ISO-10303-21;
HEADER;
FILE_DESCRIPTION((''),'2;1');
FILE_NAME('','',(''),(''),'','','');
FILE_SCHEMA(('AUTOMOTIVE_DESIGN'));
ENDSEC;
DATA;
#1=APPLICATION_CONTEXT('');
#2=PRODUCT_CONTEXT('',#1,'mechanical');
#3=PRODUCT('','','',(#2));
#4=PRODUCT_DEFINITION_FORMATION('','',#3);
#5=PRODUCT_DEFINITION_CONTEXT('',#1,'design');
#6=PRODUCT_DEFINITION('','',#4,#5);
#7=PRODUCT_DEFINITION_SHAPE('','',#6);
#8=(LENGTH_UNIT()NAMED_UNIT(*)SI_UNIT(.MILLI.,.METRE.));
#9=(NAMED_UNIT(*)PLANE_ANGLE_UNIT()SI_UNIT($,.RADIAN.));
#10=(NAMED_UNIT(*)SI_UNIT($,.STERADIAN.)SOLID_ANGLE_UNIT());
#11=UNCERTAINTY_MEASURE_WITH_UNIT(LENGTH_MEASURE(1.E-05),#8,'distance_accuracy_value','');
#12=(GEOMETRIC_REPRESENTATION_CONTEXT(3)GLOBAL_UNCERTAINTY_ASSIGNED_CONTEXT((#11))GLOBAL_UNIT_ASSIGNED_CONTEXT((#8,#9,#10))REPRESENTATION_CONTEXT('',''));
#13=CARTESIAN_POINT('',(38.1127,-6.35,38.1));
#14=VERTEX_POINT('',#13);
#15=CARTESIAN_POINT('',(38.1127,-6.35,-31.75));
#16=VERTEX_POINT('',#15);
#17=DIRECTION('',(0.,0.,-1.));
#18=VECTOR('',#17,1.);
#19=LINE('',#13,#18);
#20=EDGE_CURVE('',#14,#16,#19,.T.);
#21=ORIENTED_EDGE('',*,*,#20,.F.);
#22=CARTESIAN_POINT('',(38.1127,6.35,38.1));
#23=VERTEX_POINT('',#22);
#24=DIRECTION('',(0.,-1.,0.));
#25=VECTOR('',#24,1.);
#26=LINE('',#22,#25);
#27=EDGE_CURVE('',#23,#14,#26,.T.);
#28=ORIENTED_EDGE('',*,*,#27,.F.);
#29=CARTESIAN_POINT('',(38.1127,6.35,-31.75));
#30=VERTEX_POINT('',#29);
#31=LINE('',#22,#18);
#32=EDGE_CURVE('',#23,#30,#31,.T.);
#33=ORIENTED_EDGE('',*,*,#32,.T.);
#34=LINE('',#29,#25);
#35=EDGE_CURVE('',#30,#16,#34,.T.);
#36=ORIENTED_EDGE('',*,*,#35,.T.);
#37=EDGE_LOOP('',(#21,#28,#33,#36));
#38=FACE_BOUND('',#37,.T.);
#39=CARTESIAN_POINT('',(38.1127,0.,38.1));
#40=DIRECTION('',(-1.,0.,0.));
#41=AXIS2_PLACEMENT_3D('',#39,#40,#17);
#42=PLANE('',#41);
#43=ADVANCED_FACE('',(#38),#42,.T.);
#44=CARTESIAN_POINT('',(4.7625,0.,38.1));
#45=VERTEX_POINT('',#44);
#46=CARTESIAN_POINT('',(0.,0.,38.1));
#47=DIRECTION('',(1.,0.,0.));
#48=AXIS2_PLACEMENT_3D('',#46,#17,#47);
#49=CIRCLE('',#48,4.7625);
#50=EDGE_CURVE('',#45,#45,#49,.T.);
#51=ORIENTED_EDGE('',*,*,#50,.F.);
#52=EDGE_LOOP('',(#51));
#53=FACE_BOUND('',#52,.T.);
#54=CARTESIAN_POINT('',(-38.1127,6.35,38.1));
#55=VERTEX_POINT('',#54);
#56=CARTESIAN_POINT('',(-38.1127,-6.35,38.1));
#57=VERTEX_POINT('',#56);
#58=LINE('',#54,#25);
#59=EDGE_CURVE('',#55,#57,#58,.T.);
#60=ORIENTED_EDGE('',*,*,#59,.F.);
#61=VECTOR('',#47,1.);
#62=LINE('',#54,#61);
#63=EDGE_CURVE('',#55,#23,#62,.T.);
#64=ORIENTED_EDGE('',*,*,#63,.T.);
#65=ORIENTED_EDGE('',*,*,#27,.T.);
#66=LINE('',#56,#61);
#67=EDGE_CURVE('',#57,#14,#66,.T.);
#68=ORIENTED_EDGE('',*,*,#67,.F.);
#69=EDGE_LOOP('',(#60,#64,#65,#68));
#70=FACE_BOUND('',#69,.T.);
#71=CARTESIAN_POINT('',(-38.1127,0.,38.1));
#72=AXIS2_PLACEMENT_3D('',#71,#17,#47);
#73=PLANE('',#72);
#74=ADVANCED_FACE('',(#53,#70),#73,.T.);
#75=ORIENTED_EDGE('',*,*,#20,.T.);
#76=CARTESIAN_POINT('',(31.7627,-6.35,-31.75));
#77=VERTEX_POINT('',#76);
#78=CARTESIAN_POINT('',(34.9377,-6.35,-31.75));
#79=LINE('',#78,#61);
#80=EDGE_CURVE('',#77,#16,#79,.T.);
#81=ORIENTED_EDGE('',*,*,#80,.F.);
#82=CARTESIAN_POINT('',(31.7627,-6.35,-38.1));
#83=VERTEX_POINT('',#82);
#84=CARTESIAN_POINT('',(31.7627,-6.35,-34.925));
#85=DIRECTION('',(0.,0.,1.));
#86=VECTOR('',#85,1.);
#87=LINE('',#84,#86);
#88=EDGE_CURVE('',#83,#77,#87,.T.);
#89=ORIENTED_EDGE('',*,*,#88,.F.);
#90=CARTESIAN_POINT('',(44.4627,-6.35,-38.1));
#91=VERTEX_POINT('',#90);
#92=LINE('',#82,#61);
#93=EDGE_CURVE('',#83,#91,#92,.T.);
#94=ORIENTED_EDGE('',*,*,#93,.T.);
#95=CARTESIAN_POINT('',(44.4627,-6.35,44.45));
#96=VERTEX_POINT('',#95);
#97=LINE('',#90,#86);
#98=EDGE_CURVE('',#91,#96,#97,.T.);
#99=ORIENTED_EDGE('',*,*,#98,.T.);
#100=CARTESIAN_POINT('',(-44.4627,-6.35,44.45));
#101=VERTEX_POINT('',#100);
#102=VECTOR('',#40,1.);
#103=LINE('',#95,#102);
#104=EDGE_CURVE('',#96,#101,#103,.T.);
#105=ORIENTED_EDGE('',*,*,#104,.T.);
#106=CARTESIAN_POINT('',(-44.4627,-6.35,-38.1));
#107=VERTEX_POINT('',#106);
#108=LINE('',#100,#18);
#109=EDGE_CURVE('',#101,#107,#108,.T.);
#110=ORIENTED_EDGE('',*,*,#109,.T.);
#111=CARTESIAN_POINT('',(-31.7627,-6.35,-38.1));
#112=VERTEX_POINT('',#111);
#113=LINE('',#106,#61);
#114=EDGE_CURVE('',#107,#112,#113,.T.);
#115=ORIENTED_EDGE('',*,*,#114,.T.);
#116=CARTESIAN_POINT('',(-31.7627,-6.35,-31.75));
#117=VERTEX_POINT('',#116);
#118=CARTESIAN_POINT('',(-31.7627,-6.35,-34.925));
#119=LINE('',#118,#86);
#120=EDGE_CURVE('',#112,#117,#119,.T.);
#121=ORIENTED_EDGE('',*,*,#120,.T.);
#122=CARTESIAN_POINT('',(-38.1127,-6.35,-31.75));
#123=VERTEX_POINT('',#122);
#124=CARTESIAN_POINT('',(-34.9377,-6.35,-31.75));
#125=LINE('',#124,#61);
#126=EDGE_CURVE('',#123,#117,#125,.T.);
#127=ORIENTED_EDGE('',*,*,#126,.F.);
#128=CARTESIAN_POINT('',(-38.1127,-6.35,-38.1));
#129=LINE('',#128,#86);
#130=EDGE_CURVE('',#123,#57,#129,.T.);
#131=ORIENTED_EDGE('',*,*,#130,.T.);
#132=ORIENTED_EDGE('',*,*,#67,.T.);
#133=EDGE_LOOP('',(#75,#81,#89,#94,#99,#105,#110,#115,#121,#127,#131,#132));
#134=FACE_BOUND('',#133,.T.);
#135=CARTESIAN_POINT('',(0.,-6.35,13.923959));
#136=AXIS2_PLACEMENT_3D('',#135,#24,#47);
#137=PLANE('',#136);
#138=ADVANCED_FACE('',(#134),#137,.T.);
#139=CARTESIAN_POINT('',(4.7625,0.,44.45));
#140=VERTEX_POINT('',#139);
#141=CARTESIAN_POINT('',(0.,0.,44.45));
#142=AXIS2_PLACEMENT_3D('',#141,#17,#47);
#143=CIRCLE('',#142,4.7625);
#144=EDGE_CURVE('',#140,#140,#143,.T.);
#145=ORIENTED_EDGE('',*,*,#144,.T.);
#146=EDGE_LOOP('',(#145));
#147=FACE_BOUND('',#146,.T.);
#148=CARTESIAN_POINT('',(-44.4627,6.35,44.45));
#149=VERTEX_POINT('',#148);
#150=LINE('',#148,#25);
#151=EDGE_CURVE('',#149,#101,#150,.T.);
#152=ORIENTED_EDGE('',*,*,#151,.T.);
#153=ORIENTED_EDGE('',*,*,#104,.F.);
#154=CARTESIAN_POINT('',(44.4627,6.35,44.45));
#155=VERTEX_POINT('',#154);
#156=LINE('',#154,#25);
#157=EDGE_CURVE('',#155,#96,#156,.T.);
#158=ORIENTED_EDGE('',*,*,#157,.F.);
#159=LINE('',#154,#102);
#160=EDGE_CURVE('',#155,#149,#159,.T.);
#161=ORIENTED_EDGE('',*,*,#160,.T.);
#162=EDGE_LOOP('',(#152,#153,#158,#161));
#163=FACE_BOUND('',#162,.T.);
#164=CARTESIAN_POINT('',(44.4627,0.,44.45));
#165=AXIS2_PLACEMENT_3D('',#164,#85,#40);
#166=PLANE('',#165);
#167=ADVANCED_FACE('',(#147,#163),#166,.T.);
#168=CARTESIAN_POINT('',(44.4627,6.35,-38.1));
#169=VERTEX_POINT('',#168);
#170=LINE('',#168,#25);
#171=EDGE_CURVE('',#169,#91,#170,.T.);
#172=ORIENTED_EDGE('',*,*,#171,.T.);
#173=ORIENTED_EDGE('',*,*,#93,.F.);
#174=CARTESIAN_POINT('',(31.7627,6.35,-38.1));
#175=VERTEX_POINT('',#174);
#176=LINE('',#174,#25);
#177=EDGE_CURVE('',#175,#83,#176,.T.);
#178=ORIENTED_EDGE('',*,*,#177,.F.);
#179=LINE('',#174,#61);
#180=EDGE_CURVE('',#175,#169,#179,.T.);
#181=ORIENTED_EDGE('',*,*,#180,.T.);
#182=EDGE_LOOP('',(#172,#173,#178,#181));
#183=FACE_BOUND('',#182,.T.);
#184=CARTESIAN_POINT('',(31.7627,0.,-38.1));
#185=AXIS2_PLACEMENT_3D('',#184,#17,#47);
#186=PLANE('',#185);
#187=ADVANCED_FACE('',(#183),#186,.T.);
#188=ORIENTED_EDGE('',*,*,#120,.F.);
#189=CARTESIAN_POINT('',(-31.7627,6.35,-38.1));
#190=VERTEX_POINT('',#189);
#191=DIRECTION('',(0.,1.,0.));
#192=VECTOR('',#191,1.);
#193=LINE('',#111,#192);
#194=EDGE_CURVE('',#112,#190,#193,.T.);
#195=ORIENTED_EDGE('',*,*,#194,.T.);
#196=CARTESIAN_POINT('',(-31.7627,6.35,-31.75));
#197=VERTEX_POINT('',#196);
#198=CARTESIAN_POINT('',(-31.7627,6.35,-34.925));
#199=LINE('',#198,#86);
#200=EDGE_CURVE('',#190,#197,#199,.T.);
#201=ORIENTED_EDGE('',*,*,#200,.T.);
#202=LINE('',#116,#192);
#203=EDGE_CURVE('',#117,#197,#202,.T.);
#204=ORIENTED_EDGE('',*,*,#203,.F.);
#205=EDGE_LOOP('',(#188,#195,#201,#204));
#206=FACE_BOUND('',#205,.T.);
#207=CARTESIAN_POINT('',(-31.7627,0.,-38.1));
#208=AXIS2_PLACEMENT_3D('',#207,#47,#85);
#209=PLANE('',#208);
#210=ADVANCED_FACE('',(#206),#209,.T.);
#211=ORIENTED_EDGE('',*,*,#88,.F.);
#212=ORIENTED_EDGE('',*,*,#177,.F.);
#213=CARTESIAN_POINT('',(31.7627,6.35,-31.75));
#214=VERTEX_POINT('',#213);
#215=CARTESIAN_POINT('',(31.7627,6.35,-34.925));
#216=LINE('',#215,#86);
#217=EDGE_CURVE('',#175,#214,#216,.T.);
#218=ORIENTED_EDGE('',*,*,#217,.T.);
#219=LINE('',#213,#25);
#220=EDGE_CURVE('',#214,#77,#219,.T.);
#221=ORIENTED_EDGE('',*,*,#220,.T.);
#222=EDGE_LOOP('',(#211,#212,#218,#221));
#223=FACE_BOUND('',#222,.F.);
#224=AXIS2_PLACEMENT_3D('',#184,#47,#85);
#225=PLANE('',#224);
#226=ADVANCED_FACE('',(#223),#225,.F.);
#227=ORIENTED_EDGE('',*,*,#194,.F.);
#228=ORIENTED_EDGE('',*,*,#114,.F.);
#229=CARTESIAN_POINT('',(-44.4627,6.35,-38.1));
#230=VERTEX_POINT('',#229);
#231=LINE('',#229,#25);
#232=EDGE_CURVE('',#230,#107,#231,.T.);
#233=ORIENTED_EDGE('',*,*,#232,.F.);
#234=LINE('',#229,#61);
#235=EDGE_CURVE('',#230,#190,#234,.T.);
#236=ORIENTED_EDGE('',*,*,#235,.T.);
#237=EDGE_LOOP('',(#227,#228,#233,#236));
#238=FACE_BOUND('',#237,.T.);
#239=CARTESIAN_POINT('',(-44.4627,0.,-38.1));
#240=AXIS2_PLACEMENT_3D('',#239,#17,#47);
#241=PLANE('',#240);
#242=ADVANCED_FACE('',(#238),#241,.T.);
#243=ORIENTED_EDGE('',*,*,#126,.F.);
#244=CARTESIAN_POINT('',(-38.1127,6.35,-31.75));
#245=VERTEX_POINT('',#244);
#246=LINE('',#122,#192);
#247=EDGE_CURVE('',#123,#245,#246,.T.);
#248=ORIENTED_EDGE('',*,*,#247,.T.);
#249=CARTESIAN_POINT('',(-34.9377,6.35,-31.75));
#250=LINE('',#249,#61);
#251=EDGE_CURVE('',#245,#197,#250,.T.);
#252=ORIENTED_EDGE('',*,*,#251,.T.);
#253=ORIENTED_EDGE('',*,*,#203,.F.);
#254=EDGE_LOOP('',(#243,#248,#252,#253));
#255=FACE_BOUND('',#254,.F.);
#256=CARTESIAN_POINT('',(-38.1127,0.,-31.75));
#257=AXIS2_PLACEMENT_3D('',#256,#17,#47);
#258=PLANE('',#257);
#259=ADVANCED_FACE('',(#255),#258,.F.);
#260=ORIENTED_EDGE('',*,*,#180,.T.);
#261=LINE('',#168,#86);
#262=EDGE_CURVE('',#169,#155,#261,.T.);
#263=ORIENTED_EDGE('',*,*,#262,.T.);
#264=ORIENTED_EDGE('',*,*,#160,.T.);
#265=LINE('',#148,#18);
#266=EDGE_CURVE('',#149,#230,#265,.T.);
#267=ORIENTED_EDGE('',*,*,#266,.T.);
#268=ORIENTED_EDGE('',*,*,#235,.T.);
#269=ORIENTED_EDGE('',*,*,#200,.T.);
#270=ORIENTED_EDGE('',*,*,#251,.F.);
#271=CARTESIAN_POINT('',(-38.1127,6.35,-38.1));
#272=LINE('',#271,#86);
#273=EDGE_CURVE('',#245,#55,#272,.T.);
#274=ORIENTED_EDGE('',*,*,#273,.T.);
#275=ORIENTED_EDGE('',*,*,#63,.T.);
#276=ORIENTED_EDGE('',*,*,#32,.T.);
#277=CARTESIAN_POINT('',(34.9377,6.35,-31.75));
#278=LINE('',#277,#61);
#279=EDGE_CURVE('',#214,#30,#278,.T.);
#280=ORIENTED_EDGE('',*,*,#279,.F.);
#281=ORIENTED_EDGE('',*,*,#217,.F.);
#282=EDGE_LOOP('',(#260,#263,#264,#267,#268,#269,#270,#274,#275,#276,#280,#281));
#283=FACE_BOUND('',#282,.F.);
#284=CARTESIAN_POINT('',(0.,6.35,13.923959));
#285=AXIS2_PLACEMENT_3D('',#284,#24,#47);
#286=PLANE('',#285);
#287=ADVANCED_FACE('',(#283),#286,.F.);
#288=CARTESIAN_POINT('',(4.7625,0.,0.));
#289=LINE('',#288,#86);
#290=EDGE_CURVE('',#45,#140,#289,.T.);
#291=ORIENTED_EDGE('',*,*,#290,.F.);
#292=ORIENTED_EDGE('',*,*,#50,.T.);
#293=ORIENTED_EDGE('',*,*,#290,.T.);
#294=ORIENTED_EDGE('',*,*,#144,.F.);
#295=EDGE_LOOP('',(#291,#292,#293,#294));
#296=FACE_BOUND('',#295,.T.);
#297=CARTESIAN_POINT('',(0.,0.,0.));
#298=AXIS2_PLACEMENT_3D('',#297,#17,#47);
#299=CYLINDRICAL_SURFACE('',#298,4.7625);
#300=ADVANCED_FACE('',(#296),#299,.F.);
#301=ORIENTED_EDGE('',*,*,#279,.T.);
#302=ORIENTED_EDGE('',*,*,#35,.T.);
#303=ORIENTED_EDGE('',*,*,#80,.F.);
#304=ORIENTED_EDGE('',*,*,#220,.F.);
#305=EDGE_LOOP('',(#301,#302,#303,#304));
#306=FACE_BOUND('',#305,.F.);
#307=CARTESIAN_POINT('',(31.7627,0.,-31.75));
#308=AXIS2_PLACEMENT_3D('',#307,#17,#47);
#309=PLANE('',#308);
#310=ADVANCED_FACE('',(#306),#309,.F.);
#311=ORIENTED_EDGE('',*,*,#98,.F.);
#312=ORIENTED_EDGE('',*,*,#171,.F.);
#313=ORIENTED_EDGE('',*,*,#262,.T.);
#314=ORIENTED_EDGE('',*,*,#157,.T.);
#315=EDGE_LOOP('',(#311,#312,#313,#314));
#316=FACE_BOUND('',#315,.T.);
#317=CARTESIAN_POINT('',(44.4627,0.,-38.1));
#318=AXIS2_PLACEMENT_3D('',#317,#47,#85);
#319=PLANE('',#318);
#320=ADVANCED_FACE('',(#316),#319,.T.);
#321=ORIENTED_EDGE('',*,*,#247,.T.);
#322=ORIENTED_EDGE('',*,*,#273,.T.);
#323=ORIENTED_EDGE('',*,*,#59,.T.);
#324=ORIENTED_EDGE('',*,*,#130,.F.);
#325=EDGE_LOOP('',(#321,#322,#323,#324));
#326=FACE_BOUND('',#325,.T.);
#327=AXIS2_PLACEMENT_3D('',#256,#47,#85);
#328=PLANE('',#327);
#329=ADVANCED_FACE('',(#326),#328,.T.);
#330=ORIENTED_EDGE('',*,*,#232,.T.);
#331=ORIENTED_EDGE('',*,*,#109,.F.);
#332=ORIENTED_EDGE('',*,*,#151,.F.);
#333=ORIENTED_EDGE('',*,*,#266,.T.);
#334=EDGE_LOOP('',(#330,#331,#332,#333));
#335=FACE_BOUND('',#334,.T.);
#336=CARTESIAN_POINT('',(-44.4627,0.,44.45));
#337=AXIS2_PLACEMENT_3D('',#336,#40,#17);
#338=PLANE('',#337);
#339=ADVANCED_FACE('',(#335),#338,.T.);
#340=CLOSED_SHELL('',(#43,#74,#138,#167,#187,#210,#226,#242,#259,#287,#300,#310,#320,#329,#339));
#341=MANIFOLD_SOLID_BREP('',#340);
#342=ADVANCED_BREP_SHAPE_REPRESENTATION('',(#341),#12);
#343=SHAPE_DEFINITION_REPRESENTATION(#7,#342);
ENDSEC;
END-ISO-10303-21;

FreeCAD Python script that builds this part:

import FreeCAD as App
import Part
import Sketcher

V = App.Vector
Q = App.Units.Quantity

doc = App.newDocument("Part")
params = doc.addObject("Spreadsheet::Sheet", "Params")
for row, (alias, value) in enumerate([
    ("sketch1_width", "0.5 in"),
    ("sketch1_width2", "0.25 in"),
    ("sketch1_width3", "3.001 in"),
    ("pad1_length", "0.5 in"),
    ("sketch2_diameter", "0.375 in"),
    ("pocket1_length", "6 in"),
], start=1):
    params.set(f"A{row}", alias)
    params.set(f"B{row}", "=" + value)
    params.setAlias(f"B{row}", alias)

body = doc.addObject("PartDesign::Body", "Body")

# Sketch on XZ plane
sketch1 = doc.addObject("Sketcher::SketchObject", "Sketch")
body.addObject(sketch1)
sketch1.AttachmentSupport = (doc.XZ_Plane, [""])
sketch1.MapMode = "FlatFace"
sketch1.addGeometry(Part.LineSegment(V(-38, -32, 0), V(-38, 38, 0)), False)
sketch1.addGeometry(Part.LineSegment(V(-38, 38, 0), V(38, 38, 0)), False)
sketch1.addGeometry(Part.LineSegment(V(38, 38, 0), V(38, -32, 0)), False)
sketch1.addGeometry(Part.LineSegment(V(38, -32, 0), V(32, -32, 0)), False)
sketch1.addGeometry(Part.LineSegment(V(32, -32, 0), V(32, -38, 0)), False)
sketch1.addGeometry(Part.LineSegment(V(32, -38, 0), V(44, -38, 0)), False)
sketch1.addGeometry(Part.LineSegment(V(44, -38, 0), V(44, 44, 0)), False)
sketch1.addGeometry(Part.LineSegment(V(44, 44, 0), V(-44, 44, 0)), False)
sketch1.addGeometry(Part.LineSegment(V(-44, 44, 0), V(-44, -38, 0)), False)
sketch1.addGeometry(Part.LineSegment(V(-44, -38, 0), V(-32, -38, 0)), False)
sketch1.addGeometry(Part.LineSegment(V(-32, -38, 0), V(-32, -32, 0)), False)
sketch1.addGeometry(Part.LineSegment(V(-32, -32, 0), V(-38, -32, 0)), False)
sketch1.addConstraint(Sketcher.Constraint("Coincident", 0, 2, 1, 1))
sketch1.addConstraint(Sketcher.Constraint("Coincident", 1, 2, 2, 1))
sketch1.addConstraint(Sketcher.Constraint("Coincident", 2, 2, 3, 1))
sketch1.addConstraint(Sketcher.Constraint("Coincident", 3, 2, 4, 1))
sketch1.addConstraint(Sketcher.Constraint("Coincident", 4, 2, 5, 1))
sketch1.addConstraint(Sketcher.Constraint("Coincident", 5, 2, 6, 1))
sketch1.addConstraint(Sketcher.Constraint("Coincident", 6, 2, 7, 1))
sketch1.addConstraint(Sketcher.Constraint("Coincident", 7, 2, 8, 1))
sketch1.addConstraint(Sketcher.Constraint("Coincident", 8, 2, 9, 1))
sketch1.addConstraint(Sketcher.Constraint("Coincident", 9, 2, 10, 1))
sketch1.addConstraint(Sketcher.Constraint("Coincident", 10, 2, 11, 1))
sketch1.addConstraint(Sketcher.Constraint("Coincident", 11, 2, 0, 1))
sketch1.addConstraint(Sketcher.Constraint("Vertical", 0))
sketch1.addConstraint(Sketcher.Constraint("Horizontal", 1))
sketch1.addConstraint(Sketcher.Constraint("Vertical", 2))
sketch1.addConstraint(Sketcher.Constraint("Horizontal", 3))
sketch1.addConstraint(Sketcher.Constraint("Vertical", 4))
sketch1.addConstraint(Sketcher.Constraint("Horizontal", 5))
sketch1.addConstraint(Sketcher.Constraint("Vertical", 6))
sketch1.addConstraint(Sketcher.Constraint("Horizontal", 7))
sketch1.addConstraint(Sketcher.Constraint("Vertical", 8))
sketch1.addConstraint(Sketcher.Constraint("Horizontal", 9))
sketch1.addConstraint(Sketcher.Constraint("Vertical", 10))
sketch1.addConstraint(Sketcher.Constraint("Horizontal", 11))
sketch1.addConstraint(Sketcher.Constraint("Symmetric", 5, 2, 8, 2, -2))
sketch1.addConstraint(Sketcher.Constraint("Symmetric", 3, 2, 10, 2, -2))
sketch1.addConstraint(Sketcher.Constraint("Equal", 3, 11))
sketch1.addConstraint(Sketcher.Constraint("Equal", 11, 4))
sketch1.addConstraint(Sketcher.Constraint("DistanceX", 5, 1, 5, 2, Q("0.5 in")))
sketch1.addConstraint(Sketcher.Constraint("DistanceY", 4, 2, 1, 2, Q("3 in")))
sketch1.addConstraint(Sketcher.Constraint("DistanceY", 2, 2, 6, 2, Q("3 in")))
sketch1.addConstraint(Sketcher.Constraint("DistanceX", 3, 2, 3, 1, Q("0.25 in")))
sketch1.addConstraint(Sketcher.Constraint("DistanceY", -1, 1, 0, 2, Q("1.5 in")))
sketch1.addConstraint(Sketcher.Constraint("DistanceX", 1, 1, 1, 2, Q("3.001 in")))
sketch1.setExpression("Constraints[28]", "Params.sketch1_width")
sketch1.setExpression("Constraints[31]", "Params.sketch1_width2")
sketch1.setExpression("Constraints[33]", "Params.sketch1_width3")
pad1 = doc.addObject("PartDesign::Pad", "Pad")
body.addObject(pad1)
pad1.Profile = sketch1
pad1.setExpression("Length", "Params.pad1_length")
pad1.Midplane = True

# Sketch on XY plane
sketch2 = doc.addObject("Sketcher::SketchObject", "Sketch001")
body.addObject(sketch2)
sketch2.AttachmentSupport = (doc.XY_Plane, [""])
sketch2.MapMode = "FlatFace"
sketch2.addGeometry(Part.Circle(V(0, 0, 0), V(0, 0, 1), 4.8), False)
sketch2.addConstraint(Sketcher.Constraint("Coincident", 0, 3, -1, 1))
sketch2.addConstraint(Sketcher.Constraint("Diameter", 0, Q("0.375 in")))
sketch2.setExpression("Constraints[1]", "Params.sketch2_diameter")
pocket1 = doc.addObject("PartDesign::Pocket", "Pocket")
body.addObject(pocket1)
pocket1.Profile = sketch2
pocket1.setExpression("Length", "Params.pocket1_length")
pocket1.Reversed = True

doc.recompute()
